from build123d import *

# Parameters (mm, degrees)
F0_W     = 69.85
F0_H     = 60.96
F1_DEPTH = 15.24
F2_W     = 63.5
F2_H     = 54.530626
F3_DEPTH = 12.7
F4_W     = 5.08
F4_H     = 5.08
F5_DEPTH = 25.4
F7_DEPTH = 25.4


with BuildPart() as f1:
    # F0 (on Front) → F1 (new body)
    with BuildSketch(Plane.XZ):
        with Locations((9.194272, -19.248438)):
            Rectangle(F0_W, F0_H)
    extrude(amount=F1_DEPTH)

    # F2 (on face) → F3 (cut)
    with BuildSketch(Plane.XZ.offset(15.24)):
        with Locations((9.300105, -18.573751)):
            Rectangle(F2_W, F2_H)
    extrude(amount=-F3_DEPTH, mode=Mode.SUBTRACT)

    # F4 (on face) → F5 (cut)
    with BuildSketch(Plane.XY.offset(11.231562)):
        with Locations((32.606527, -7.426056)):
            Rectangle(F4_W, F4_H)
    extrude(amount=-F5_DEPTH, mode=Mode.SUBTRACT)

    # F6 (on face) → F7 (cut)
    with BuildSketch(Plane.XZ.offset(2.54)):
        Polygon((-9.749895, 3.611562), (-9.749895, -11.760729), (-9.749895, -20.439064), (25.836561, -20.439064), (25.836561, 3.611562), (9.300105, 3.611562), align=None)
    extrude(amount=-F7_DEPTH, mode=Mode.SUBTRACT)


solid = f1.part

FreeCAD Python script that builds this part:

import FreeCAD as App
import Part
import Sketcher
from FreeCAD import Vector
Q = App.Units.Quantity


def add_polygon(sketch, points):
    """Adds a closed chain of lines whose ends are joined by coincident constraints."""
    first, n = sketch.GeometryCount, len(points)
    for a, b in zip(points, points[1:] + points[:1]):
        sketch.addGeometry(Part.LineSegment(App.Vector(*a, 0), App.Vector(*b, 0)), False)
    for i in range(n):
        sketch.addConstraint(Sketcher.Constraint("Coincident", first + i, 2, first + (i + 1) % n, 1))

doc = App.newDocument("Part")
body = doc.addObject("PartDesign::Body", "Body")

# Sketch on XZ plane
sketch1 = body.newObject("Sketcher::SketchObject", "Sketch")
sketch1.AttachmentSupport = (doc.getObject("XZ_Plane"), [""])
sketch1.MapMode = "FlatFace"
add_polygon(sketch1, [(-26, 11), (-26, -50), (44, -50), (44, 11)])  # lines 0-3
sketch1.addConstraint([
    Sketcher.Constraint("Vertical", 0),
    Sketcher.Constraint("Horizontal", 1),
    Sketcher.Constraint("Vertical", 2),
    Sketcher.Constraint("Horizontal", 3),
    Sketcher.Constraint("DistanceY", 0, 2, 0, 1, Q("2.4 in")),
    Sketcher.Constraint("DistanceX", 1, 1, 1, 2, Q("2.75 in")),
    Sketcher.Constraint("DistanceX", 0, 2, -1, 1, Q("25.730728 mm")),
    Sketcher.Constraint("DistanceY", 0, 2, -1, 1, Q("49.728438 mm")),
])
pad1 = body.newObject("PartDesign::Pad", "Pad")
pad1.Profile = sketch1
pad1.Length = Q("0.6 in")

# Sketch on XZ plane
sketch2 = body.newObject("Sketcher::SketchObject", "Sketch001")
sketch2.AttachmentSupport = (doc.getObject("XZ_Plane"), [""])
sketch2.MapMode = "FlatFace"
sketch2.AttachmentOffset = App.Placement(Vector(0, 0, 0.6 * 25.4), App.Rotation())
add_polygon(sketch2, [(-22, 9), (-22, -46), (41, -46), (41, 9)])  # lines 0-3
sketch2.addConstraint([
    Sketcher.Constraint("Vertical", 0),
    Sketcher.Constraint("Horizontal", 1),
    Sketcher.Constraint("Vertical", 2),
    Sketcher.Constraint("Horizontal", 3),
    Sketcher.Constraint("DistanceX", 1, 1, 1, 2, Q("2.5 in")),
    Sketcher.Constraint("DistanceY", 0, 2, 0, 1, Q("54.530626 mm")),
    Sketcher.Constraint("DistanceY", -1, 1, 2, 2, Q("8.691562 mm")),
    Sketcher.Constraint("DistanceX", 0, 2, -1, 1, Q("22.449895 mm")),
])
pocket1 = body.newObject("PartDesign::Pocket", "Pocket")
pocket1.Profile = sketch2
pocket1.Length = Q("0.5 in")

# Sketch on XY plane
sketch3 = body.newObject("Sketcher::SketchObject", "Sketch002")
sketch3.AttachmentSupport = (doc.getObject("XY_Plane"), [""])
sketch3.MapMode = "FlatFace"
sketch3.AttachmentOffset = App.Placement(Vector(0, 0, 11.231562), App.Rotation())
add_polygon(sketch3, [(30, -5), (30, -10), (35, -10), (35, -5)])  # lines 0-3
sketch3.addConstraint([
    Sketcher.Constraint("Vertical", 0),
    Sketcher.Constraint("Horizontal", 1),
    Sketcher.Constraint("Vertical", 2),
    Sketcher.Constraint("Horizontal", 3),
    Sketcher.Constraint("Equal", 3, 0),
    Sketcher.Constraint("DistanceX", 1, 1, 1, 2, Q("0.2 in")),
    Sketcher.Constraint("DistanceX", -1, 1, 0, 2, Q("30.066527 mm")),
    Sketcher.Constraint("DistanceY", 0, 2, -1, 1, Q("9.966056 mm")),
])
pocket2 = body.newObject("PartDesign::Pocket", "Pocket001")
pocket2.Profile = sketch3
pocket2.Length = Q("1 in")

# Sketch on XZ plane
sketch4 = body.newObject("Sketcher::SketchObject", "Sketch003")
sketch4.AttachmentSupport = (doc.getObject("XZ_Plane"), [""])
sketch4.MapMode = "FlatFace"
sketch4.AttachmentOffset = App.Placement(Vector(0, 0, 0.1 * 25.4), App.Rotation())
add_polygon(sketch4, [(-10, 4), (-10, -20), (26, -20), (26, 4)])  # lines 0-3
sketch4.addConstraint([
    Sketcher.Constraint("Vertical", 0),
    Sketcher.Constraint("Horizontal", 1),
    Sketcher.Constraint("Vertical", 2),
    Sketcher.Constraint("Horizontal", 3),
    Sketcher.Constraint("DistanceX", 1, 1, 1, 2, Q("35.586456 mm")),
    Sketcher.Constraint("DistanceY", 0, 2, 0, 1, Q("24.050626 mm")),
    Sketcher.Constraint("DistanceX", -1, 1, 1, 2, Q("25.836561 mm")),
    Sketcher.Constraint("DistanceY", 0, 2, -1, 1, Q("20.439064 mm")),
])
pocket3 = body.newObject("PartDesign::Pocket", "Pocket002")
pocket3.Profile = sketch4
pocket3.Length = Q("1 in")

doc.recompute()
